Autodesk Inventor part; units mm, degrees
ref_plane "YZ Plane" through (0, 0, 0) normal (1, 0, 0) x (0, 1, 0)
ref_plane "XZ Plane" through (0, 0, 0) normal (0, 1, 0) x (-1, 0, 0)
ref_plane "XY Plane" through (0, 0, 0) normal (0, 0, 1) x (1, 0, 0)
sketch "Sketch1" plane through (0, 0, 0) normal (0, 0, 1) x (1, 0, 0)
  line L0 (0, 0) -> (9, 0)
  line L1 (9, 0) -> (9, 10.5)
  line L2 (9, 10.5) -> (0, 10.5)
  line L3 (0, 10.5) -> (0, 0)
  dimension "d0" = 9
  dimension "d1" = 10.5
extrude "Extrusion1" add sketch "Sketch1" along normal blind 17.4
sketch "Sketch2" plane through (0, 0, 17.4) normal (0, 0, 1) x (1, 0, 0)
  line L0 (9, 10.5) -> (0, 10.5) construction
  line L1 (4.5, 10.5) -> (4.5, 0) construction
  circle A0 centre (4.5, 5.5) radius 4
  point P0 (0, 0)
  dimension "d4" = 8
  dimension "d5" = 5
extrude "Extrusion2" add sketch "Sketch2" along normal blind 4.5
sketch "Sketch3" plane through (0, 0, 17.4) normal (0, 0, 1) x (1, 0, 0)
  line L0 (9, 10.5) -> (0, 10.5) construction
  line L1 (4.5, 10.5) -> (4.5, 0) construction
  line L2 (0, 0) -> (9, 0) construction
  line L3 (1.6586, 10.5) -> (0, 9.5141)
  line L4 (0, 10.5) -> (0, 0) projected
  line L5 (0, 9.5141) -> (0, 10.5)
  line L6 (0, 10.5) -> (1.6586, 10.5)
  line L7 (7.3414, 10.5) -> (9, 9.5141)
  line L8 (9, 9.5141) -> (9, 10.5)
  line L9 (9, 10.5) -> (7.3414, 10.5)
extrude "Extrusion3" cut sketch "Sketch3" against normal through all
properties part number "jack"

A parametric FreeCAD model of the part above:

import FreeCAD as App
import Part
import Sketcher
from FreeCAD import Vector
Q = App.Units.Quantity


def add_polygon(sketch, points):
    """Adds a closed chain of lines whose ends are joined by coincident constraints."""
    first, n = sketch.GeometryCount, len(points)
    for a, b in zip(points, points[1:] + points[:1]):
        sketch.addGeometry(Part.LineSegment(App.Vector(*a, 0), App.Vector(*b, 0)), False)
    for i in range(n):
        sketch.addConstraint(Sketcher.Constraint("Coincident", first + i, 2, first + (i + 1) % n, 1))

doc = App.newDocument("Part")
params = doc.addObject("Spreadsheet::Sheet", "Params")
for row, (alias, value) in enumerate([
    ("sketch1_width", "9 mm"),
    ("sketch1_height", "10.5 mm"),
    ("pad1_length", "17.4 mm"),
    ("sketch2_diameter", "8 mm"),
    ("pad2_length", "4.5 mm"),
], start=1):
    params.set(f"A{row}", alias)
    params.set(f"B{row}", "=" + value)
    params.setAlias(f"B{row}", alias)

body = doc.addObject("PartDesign::Body", "Body")

# Sketch on XY plane
sketch1 = body.newObject("Sketcher::SketchObject", "Sketch")
sketch1.AttachmentSupport = (doc.getObject("XY_Plane"), [""])
sketch1.MapMode = "FlatFace"
add_polygon(sketch1, [(0, 10), (0, 0), (9, 0), (9, 10)])  # lines 0-3
sketch1.addConstraint(Sketcher.Constraint("Vertical", 0))
sketch1.addConstraint(Sketcher.Constraint("Horizontal", 1))
sketch1.addConstraint(Sketcher.Constraint("Vertical", 2))
sketch1.addConstraint(Sketcher.Constraint("Horizontal", 3))
sketch1.addConstraint(Sketcher.Constraint("Coincident", 0, 2, -1, 1))
sketch1.addConstraint(Sketcher.Constraint("DistanceX", 1, 1, 1, 2, Q("9 mm")))
sketch1.addConstraint(Sketcher.Constraint("DistanceY", 0, 2, 0, 1, Q("10.5 mm")))
sketch1.setExpression("Constraints[9]", "Params.sketch1_width")
sketch1.setExpression("Constraints[10]", "Params.sketch1_height")
pad1 = body.newObject("PartDesign::Pad", "Pad")
pad1.Profile = sketch1
pad1.setExpression("Length", "Params.pad1_length")

# Sketch on XY plane
sketch2 = body.newObject("Sketcher::SketchObject", "Sketch001")
sketch2.AttachmentSupport = (doc.getObject("XY_Plane"), [""])
sketch2.MapMode = "FlatFace"
sketch2.AttachmentOffset = App.Placement(Vector(0, 0, 17.4), App.Rotation())
sketch2.addGeometry(Part.Circle(Vector(4.5, 5.5, 0), Vector(0, 0, 1), 4), False)
sketch2.addConstraint(Sketcher.Constraint("Diameter", 0, Q("8 mm")))
sketch2.addConstraint(Sketcher.Constraint("DistanceX", -1, 1, 0, 3, Q("4.5 mm")))
sketch2.addConstraint(Sketcher.Constraint("DistanceY", -1, 1, 0, 3, Q("5.5 mm")))
sketch2.setExpression("Constraints[0]", "Params.sketch2_diameter")
pad2 = body.newObject("PartDesign::Pad", "Pad001")
pad2.Profile = sketch2
pad2.setExpression("Length", "Params.pad2_length")

# Sketch on XY plane
sketch3 = body.newObject("Sketcher::SketchObject", "Sketch002")
sketch3.AttachmentSupport = (doc.getObject("XY_Plane"), [""])
sketch3.MapMode = "FlatFace"
sketch3.AttachmentOffset = App.Placement(Vector(0, 0, 17.4), App.Rotation())
add_polygon(sketch3, [(0, 9.5), (1.7, 10.5), (0, 10.5)])  # lines 0-2
add_polygon(sketch3, [(9, 10.5), (7.3, 10.5), (9, 9.5)])  # lines 3-5
sketch3.addConstraint(Sketcher.Constraint("Horizontal", 1))
sketch3.addConstraint(Sketcher.Constraint("Vertical", 2))
sketch3.addConstraint(Sketcher.Constraint("Horizontal", 3))
sketch3.addConstraint(Sketcher.Constraint("Vertical", 5))
sketch3.addConstraint(Sketcher.Constraint("PointOnObject", 1, 2, -2))
sketch3.addConstraint(Sketcher.Constraint("Horizontal", 1, 2, 3, 2))
sketch3.addConstraint(Sketcher.Constraint("Horizontal", 2, 2, 4, 2))
sketch3.addConstraint(Sketcher.Constraint("Equal", 1, 3))
sketch3.addConstraint(Sketcher.Constraint("DistanceX", -1, 1, 4, 2, Q("9 mm")))
sketch3.addConstraint(Sketcher.Constraint("DistanceY", -1, 1, 0, 2, Q("10.5 mm")))
sketch3.addConstraint(Sketcher.Constraint("DistanceY", 2, 2, 2, 1, Q("0.986 mm")))
sketch3.addConstraint(Sketcher.Constraint("DistanceX", 1, 2, 1, 1, Q("1.6586 mm")))
pocket1 = body.newObject("PartDesign::Pocket", "Pocket")
pocket1.Profile = sketch3
pocket1.Type = "ThroughAll"

doc.recompute()
